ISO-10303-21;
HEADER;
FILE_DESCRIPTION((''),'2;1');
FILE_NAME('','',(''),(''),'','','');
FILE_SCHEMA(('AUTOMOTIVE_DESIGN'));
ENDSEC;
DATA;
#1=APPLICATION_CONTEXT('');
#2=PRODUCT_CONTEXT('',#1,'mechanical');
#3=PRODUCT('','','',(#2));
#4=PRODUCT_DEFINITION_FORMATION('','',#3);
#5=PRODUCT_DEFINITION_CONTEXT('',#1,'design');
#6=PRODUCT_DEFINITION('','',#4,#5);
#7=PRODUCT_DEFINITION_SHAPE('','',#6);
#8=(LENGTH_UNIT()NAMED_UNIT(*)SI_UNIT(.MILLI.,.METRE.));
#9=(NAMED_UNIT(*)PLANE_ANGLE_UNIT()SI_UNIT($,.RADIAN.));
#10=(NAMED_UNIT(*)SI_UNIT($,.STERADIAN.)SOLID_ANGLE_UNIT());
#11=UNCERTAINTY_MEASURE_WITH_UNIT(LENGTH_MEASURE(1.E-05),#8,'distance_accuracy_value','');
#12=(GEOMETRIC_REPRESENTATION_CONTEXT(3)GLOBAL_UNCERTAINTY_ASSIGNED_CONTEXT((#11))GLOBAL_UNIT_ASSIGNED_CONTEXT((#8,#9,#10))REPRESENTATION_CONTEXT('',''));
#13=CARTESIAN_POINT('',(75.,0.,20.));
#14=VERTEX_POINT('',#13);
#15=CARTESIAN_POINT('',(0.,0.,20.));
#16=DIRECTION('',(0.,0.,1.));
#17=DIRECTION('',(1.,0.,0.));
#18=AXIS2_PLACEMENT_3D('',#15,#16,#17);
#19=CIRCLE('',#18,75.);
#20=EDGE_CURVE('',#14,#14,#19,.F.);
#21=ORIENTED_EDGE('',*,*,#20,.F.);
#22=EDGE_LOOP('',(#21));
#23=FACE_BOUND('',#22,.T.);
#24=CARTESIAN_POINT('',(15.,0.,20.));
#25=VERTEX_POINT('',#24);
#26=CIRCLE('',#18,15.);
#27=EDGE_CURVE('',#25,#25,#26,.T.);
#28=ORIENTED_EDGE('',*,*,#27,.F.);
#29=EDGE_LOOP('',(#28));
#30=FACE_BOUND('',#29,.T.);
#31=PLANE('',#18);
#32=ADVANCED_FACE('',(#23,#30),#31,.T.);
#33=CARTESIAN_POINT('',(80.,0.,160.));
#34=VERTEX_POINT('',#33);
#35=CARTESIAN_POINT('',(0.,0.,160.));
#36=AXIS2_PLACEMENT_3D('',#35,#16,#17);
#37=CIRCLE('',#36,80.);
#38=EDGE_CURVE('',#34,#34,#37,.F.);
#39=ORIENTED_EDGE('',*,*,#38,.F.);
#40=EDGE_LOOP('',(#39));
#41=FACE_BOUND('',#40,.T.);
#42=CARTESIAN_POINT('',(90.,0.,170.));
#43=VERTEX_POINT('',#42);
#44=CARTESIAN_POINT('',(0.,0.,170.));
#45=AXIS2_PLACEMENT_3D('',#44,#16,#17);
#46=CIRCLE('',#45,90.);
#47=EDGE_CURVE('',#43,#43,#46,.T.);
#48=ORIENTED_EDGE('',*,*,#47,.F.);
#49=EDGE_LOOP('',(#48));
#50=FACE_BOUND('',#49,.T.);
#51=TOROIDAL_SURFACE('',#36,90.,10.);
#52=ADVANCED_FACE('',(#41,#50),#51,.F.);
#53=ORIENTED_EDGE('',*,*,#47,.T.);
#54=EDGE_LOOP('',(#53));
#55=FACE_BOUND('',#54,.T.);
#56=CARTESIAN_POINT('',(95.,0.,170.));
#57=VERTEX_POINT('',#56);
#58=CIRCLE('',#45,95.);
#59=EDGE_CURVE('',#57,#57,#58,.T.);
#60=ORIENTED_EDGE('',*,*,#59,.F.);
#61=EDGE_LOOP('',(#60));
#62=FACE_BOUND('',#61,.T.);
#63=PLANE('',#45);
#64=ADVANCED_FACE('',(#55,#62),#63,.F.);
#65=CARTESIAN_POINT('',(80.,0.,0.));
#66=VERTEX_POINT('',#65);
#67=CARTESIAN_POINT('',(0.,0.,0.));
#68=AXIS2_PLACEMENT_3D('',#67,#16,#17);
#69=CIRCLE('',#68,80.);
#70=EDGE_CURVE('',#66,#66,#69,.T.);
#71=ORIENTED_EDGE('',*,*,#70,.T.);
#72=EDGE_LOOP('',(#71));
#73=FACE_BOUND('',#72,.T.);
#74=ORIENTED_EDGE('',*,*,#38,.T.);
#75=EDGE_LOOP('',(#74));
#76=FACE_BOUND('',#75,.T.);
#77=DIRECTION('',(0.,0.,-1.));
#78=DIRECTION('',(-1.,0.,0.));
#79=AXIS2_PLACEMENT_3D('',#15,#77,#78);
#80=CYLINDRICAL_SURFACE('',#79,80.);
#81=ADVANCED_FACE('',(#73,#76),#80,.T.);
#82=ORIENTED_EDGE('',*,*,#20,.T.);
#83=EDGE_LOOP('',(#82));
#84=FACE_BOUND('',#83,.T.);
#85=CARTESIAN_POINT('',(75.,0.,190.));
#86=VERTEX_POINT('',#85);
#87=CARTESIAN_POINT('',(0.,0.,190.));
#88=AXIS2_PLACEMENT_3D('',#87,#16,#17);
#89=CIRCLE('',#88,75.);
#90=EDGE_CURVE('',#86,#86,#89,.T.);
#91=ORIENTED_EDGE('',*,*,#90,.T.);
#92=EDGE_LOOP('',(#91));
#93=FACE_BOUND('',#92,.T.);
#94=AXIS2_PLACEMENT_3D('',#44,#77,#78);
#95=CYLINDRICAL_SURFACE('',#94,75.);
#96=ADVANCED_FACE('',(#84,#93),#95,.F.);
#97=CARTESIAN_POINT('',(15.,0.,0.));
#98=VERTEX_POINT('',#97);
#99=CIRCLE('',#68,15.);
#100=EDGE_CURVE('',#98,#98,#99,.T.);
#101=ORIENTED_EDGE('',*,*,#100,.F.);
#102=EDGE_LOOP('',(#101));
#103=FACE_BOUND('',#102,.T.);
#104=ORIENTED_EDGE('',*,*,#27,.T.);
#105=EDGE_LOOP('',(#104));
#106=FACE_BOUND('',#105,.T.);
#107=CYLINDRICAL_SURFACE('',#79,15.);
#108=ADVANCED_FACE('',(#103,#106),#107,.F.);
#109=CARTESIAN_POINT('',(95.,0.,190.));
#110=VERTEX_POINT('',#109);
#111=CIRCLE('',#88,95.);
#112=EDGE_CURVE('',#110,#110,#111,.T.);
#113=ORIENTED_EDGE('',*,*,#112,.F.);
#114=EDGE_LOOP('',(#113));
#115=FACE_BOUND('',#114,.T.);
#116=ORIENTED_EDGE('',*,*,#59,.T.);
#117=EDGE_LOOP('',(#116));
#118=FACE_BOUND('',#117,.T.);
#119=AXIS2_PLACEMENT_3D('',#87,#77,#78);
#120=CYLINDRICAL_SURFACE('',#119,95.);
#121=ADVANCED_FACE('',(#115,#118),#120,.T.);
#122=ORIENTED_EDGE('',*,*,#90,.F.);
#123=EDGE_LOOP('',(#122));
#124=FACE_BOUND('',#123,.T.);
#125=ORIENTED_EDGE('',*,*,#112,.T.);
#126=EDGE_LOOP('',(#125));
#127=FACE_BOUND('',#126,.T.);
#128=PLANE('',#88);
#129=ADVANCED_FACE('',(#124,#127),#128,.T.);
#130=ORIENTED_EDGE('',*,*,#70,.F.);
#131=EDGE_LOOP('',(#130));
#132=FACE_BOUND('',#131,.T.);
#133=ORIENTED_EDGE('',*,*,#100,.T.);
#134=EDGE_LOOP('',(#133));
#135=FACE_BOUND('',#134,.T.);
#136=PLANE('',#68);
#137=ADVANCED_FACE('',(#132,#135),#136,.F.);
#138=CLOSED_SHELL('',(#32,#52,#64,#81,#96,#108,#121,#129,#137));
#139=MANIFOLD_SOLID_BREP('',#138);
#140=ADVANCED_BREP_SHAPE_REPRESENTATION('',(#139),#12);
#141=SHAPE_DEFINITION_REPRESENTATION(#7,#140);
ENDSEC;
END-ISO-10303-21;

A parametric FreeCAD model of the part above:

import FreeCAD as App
import Part
import Sketcher
from FreeCAD import Vector


def edges_at(feature, points):
    """Names of the edges that pass closest to the given points."""
    edges = feature.Shape.Edges
    near = lambda p: min(range(len(edges)), key=lambda i: edges[i].distToShape(Part.Vertex(*p))[0])
    return sorted({f"Edge{near(p) + 1}" for p in points})

doc = App.newDocument("Part")
body = doc.addObject("PartDesign::Body", "Body")

# Sketch on XY plane
sketch1 = body.newObject("Sketcher::SketchObject", "Sketch")
sketch1.AttachmentSupport = (doc.getObject("XY_Plane"), [""])
sketch1.MapMode = "FlatFace"
sketch1.addGeometry([
    Part.Circle(Vector(0, 0, 0), Vector(0, 0, 1), 80),
    Part.Circle(Vector(0, 0, 0), Vector(0, 0, 1), 15),
], False)
sketch1.addConstraint([
    Sketcher.Constraint("Coincident", 0, 3, -1, 1),
    Sketcher.Constraint("Coincident", 1, 3, -1, 1),
    Sketcher.Constraint("Diameter", 0, 160.0),
    Sketcher.Constraint("Diameter", 1, 30.0),
])
pad1 = body.newObject("PartDesign::Pad", "Pad")
pad1.Profile = sketch1
pad1.Length = 20

# Sketch on XY plane
sketch2 = body.newObject("Sketcher::SketchObject", "Sketch001")
sketch2.AttachmentSupport = (doc.getObject("XY_Plane"), [""])
sketch2.MapMode = "FlatFace"
sketch2.AttachmentOffset = App.Placement(Vector(0, 0, 20), App.Rotation())
sketch2.addGeometry([
    Part.Circle(Vector(0, 0, 0), Vector(0, 0, 1), 80),
    Part.Circle(Vector(0, 0, 0), Vector(0, 0, 1), 75),
], False)
sketch2.addConstraint([
    Sketcher.Constraint("Coincident", 0, 3, -1, 1),
    Sketcher.Constraint("Coincident", 1, 3, -1, 1),
    Sketcher.Constraint("Diameter", 0, 160.0),
    Sketcher.Constraint("Diameter", 1, 150.0),
])
pad2 = body.newObject("PartDesign::Pad", "Pad001")
pad2.Profile = sketch2
pad2.Length = 150

# Sketch on XY plane
sketch3 = body.newObject("Sketcher::SketchObject", "Sketch002")
sketch3.AttachmentSupport = (doc.getObject("XY_Plane"), [""])
sketch3.MapMode = "FlatFace"
sketch3.AttachmentOffset = App.Placement(Vector(0, 0, 170), App.Rotation())
sketch3.addGeometry([
    Part.Circle(Vector(0, 0, 0), Vector(0, 0, 1), 95),
    Part.Circle(Vector(0, 0, 0), Vector(0, 0, 1), 75),
], False)
sketch3.addConstraint([
    Sketcher.Constraint("Coincident", 0, 3, -1, 1),
    Sketcher.Constraint("Coincident", 1, 3, -1, 1),
    Sketcher.Constraint("Diameter", 0, 190.0),
    Sketcher.Constraint("Diameter", 1, 150.0),
])
pad3 = body.newObject("PartDesign::Pad", "Pad002")
pad3.Profile = sketch3
pad3.Length = 20
doc.recompute()

fillet = body.newObject("PartDesign::Fillet", "Fillet")
fillet.Base = (pad3, edges_at(pad3, [(-80, 0, 170)]))
fillet.Radius = 10

doc.recompute()
